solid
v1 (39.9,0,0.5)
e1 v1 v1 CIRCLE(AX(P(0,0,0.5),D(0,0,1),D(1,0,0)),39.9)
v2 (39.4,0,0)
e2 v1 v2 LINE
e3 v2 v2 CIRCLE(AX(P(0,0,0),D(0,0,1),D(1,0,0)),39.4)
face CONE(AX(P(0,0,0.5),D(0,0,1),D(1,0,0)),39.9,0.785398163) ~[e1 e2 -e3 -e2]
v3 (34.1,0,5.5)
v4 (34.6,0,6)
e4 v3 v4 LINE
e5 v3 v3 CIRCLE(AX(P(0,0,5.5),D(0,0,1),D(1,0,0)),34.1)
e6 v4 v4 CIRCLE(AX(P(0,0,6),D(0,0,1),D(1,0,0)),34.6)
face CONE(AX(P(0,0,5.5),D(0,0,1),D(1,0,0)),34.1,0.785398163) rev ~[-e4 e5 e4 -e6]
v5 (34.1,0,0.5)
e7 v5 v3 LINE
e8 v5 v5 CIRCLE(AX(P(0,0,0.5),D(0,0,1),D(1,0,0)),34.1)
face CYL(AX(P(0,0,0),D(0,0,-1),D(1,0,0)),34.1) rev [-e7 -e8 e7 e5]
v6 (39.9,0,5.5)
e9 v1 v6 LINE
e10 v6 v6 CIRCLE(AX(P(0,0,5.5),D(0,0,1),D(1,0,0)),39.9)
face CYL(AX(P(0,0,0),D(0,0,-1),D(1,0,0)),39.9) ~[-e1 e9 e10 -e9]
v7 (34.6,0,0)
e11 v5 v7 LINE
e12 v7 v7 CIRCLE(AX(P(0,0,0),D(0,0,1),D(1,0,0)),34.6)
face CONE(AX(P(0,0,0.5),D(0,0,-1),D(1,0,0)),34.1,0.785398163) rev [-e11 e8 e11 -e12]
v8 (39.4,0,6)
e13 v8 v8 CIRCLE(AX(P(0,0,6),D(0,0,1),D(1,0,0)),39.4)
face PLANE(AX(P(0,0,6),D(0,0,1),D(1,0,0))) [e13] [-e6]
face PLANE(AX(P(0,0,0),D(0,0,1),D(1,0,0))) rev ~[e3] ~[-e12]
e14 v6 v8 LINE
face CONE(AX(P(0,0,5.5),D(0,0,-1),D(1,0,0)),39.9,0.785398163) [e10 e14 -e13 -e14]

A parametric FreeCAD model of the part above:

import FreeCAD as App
import Part
import Sketcher
from FreeCAD import Vector


def edges_at(feature, points):
    """Names of the edges that pass closest to the given points."""
    edges = feature.Shape.Edges
    near = lambda p: min(range(len(edges)), key=lambda i: edges[i].distToShape(Part.Vertex(*p))[0])
    return sorted({f"Edge{near(p) + 1}" for p in points})

doc = App.newDocument("Part")
body = doc.addObject("PartDesign::Body", "Body")

sketch1 = doc.addObject("Sketcher::SketchObject", "Sketch")
body.addObject(sketch1)
sketch1.AttachmentSupport = (doc.XY_Plane, [""])
sketch1.MapMode = "FlatFace"
sketch1.addGeometry(Part.Circle(Vector(0, 0, 0), Vector(0, 0, 1), 40), False)
sketch1.addGeometry(Part.Circle(Vector(0, 0, 0), Vector(0, 0, 1), 34), False)
sketch1.addConstraint(Sketcher.Constraint("Coincident", 0, 3, -1, 1))
sketch1.addConstraint(Sketcher.Constraint("Coincident", 1, 3, -1, 1))
sketch1.addConstraint(Sketcher.Constraint("Diameter", 0, 79.8))
sketch1.addConstraint(Sketcher.Constraint("Diameter", 1, 68.2))
pad1 = doc.addObject("PartDesign::Pad", "Pad")
body.addObject(pad1)
pad1.Profile = sketch1
pad1.Length = 6
doc.recompute()

chamfer = doc.addObject("PartDesign::Chamfer", "Chamfer")
body.addObject(chamfer)
chamfer.Base = (pad1, edges_at(pad1, [
    (-34.1, 0, 6),
    (-34.1, 0, 0),
    (-39.9, 0, 6),
    (-39.9, 0, 0),
]))
chamfer.Size = 0.5

doc.recompute()
